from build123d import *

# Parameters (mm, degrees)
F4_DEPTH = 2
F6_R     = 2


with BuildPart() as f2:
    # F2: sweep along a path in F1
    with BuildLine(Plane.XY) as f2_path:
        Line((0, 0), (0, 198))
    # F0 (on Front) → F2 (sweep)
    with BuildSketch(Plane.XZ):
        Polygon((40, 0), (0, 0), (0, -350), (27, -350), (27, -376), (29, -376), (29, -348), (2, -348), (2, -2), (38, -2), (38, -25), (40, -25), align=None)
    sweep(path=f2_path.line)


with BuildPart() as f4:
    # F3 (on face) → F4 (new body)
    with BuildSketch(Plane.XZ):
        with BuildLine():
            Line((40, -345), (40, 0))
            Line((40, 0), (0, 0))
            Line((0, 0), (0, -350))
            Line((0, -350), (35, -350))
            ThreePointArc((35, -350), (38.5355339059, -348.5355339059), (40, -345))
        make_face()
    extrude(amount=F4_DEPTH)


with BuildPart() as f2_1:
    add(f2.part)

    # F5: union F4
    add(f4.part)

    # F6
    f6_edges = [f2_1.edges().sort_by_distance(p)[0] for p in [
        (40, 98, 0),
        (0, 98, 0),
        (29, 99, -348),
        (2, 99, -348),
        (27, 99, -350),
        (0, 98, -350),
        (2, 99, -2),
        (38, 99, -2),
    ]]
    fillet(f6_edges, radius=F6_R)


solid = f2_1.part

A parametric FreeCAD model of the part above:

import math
import FreeCAD as App
import Part
import Sketcher
Q = App.Units.Quantity


def edges_at(feature, points):
    """Names of the edges that pass closest to the given points."""
    edges = feature.Shape.Edges
    near = lambda p: min(range(len(edges)), key=lambda i: edges[i].distToShape(Part.Vertex(*p))[0])
    return sorted({f"Edge{near(p) + 1}" for p in points})


def add_polygon(sketch, points):
    """Adds a closed chain of lines whose ends are joined by coincident constraints."""
    first, n = sketch.GeometryCount, len(points)
    for a, b in zip(points, points[1:] + points[:1]):
        sketch.addGeometry(Part.LineSegment(App.Vector(*a, 0), App.Vector(*b, 0)), False)
    for i in range(n):
        sketch.addConstraint(Sketcher.Constraint("Coincident", first + i, 2, first + (i + 1) % n, 1))

doc = App.newDocument("Part")
body = doc.addObject("PartDesign::Body", "Body")

sketch1 = body.newObject("Sketcher::SketchObject", "Sketch")
sketch1.AttachmentSupport = (doc.getObject("XZ_Plane"), [""])
sketch1.MapMode = "FlatFace"
add_polygon(sketch1, [(40, 0), (0, 0), (0, -350), (27, -350), (27, -376), (29, -376), (29, -348), (2, -348), (2, -2), (38, -2), (38, -25), (40, -25)])
sketch1.addConstraint([
    Sketcher.Constraint("Horizontal", 0),
    Sketcher.Constraint("Vertical", 1),
    Sketcher.Constraint("Horizontal", 2),
    Sketcher.Constraint("Vertical", 3),
    Sketcher.Constraint("Horizontal", 4),
    Sketcher.Constraint("Vertical", 5),
    Sketcher.Constraint("Horizontal", 6),
    Sketcher.Constraint("Vertical", 7),
    Sketcher.Constraint("Horizontal", 8),
    Sketcher.Constraint("Vertical", 9),
    Sketcher.Constraint("Horizontal", 10),
    Sketcher.Constraint("Vertical", 11),
    Sketcher.Constraint("Coincident", 0, 2, -1, 1),
    Sketcher.Constraint("Equal", 2, 6),
    Sketcher.Constraint("Equal", 4, 10),
    Sketcher.Constraint("DistanceX", 0, 2, 0, 1, Q("40 mm")),
    Sketcher.Constraint("DistanceX", 2, 1, 2, 2, Q("27 mm")),
    Sketcher.Constraint("DistanceX", 4, 1, 4, 2, Q("2 mm")),
    Sketcher.Constraint("DistanceY", 1, 2, 1, 1, Q("350 mm")),
    Sketcher.Constraint("DistanceY", 3, 2, 3, 1, Q("26 mm")),
    Sketcher.Constraint("DistanceY", 5, 1, 5, 2, Q("28 mm")),
    Sketcher.Constraint("DistanceY", 7, 1, 7, 2, Q("346 mm")),
    Sketcher.Constraint("DistanceY", 9, 2, 9, 1, Q("23 mm")),
])

sketch2 = body.newObject("Sketcher::SketchObject", "Sketch001")
sketch2.AttachmentSupport = (doc.getObject("XY_Plane"), [""])
sketch2.MapMode = "FlatFace"
sketch2.addGeometry(Part.LineSegment(App.Vector(0, 0, 0), App.Vector(0, 198, 0)), False)
sketch2.addConstraint([
    Sketcher.Constraint("Vertical", 0),
    Sketcher.Constraint("Coincident", 0, 1, -1, 1),
    Sketcher.Constraint("DistanceY", 0, 1, 0, 2, Q("198 mm")),
])
doc.recompute()

additivepipe = body.newObject("PartDesign::AdditivePipe", "AdditivePipe")
additivepipe.Profile = sketch1
additivepipe.Spine = (sketch2, ["Edge1"])
body2 = doc.addObject("PartDesign::Body", "Body001")

sketch3 = body2.newObject("Sketcher::SketchObject", "Sketch002")
sketch3.AttachmentSupport = (doc.getObject("XZ_Plane001"), [""])
sketch3.MapMode = "FlatFace"
sketch3.addGeometry([
    Part.LineSegment(App.Vector(40, -345, 0), App.Vector(40, 0, 0)),
    Part.LineSegment(App.Vector(40, 0, 0), App.Vector(0, 0, 0)),
    Part.LineSegment(App.Vector(0, 0, 0), App.Vector(0, -350, 0)),
    Part.LineSegment(App.Vector(0, -350, 0), App.Vector(35, -350, 0)),
    Part.ArcOfCircle(Part.Circle(App.Vector(35, -345, 0), App.Vector(0, 0, 1), 5), math.radians(-90), math.radians(0)),
], False)
sketch3.addConstraint([
    Sketcher.Constraint("Coincident", 0, 2, 1, 1),
    Sketcher.Constraint("Coincident", 1, 2, 2, 1),
    Sketcher.Constraint("Coincident", 2, 2, 3, 1),
    Sketcher.Constraint("Tangent", 3, 2, 4, 1),
    Sketcher.Constraint("Tangent", 4, 2, 0, 1),
    Sketcher.Constraint("Vertical", 0),
    Sketcher.Constraint("Horizontal", 1),
    Sketcher.Constraint("Vertical", 2),
    Sketcher.Constraint("Horizontal", 3),
    Sketcher.Constraint("Coincident", 1, 2, -1, 1),
    Sketcher.Constraint("Radius", 4, Q("5 mm")),
    Sketcher.Constraint("DistanceX", 1, 2, 1, 1, Q("40 mm")),
    Sketcher.Constraint("DistanceY", 0, 1, 0, 2, Q("345 mm")),
])
pad1 = body2.newObject("PartDesign::Pad", "Pad")
pad1.Profile = sketch3
pad1.Length = 2
doc.recompute()

boolean = body.newObject("PartDesign::Boolean", "Boolean")
boolean.Type = "Fuse"
boolean.addObjects([body2])
doc.recompute()

fillet = body.newObject("PartDesign::Fillet", "Fillet")
fillet.Base = (boolean, edges_at(boolean, [
    (40, 98, 0),
    (0, 98, 0),
    (29, 99, -348),
    (2, 99, -348),
    (27, 99, -350),
    (0, 98, -350),
    (2, 99, -2),
    (38, 99, -2),
]))
fillet.Radius = 2

doc.recompute()
